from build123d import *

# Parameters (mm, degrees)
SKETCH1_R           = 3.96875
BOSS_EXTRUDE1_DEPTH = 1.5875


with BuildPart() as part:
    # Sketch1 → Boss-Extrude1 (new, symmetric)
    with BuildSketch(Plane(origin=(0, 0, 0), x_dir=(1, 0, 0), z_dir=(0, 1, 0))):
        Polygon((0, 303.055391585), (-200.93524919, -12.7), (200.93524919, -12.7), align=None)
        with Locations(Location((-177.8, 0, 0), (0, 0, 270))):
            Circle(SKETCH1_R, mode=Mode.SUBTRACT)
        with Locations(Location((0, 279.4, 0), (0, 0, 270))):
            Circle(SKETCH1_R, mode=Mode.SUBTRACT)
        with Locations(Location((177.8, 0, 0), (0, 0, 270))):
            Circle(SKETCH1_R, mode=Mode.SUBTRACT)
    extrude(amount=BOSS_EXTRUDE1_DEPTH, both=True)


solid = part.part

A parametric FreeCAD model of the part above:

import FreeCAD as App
import Part
import Sketcher
Q = App.Units.Quantity

doc = App.newDocument("Part")
body = doc.addObject("PartDesign::Body", "Body")

# Sketch on XZ plane
sketch1 = body.newObject("Sketcher::SketchObject", "Sketch")
sketch1.AttachmentSupport = (doc.getObject("XZ_Plane"), [""])
sketch1.MapMode = "FlatFace"
sketch1.addGeometry(Part.LineSegment(App.Vector(0, -303.1, 0), App.Vector(-200.9, 12.7, 0)), False)
sketch1.addGeometry(Part.LineSegment(App.Vector(-200.9, 12.7, 0), App.Vector(200.9, 12.7, 0)), False)
sketch1.addGeometry(Part.LineSegment(App.Vector(200.9, 12.7, 0), App.Vector(0, -303.1, 0)), False)
sketch1.addGeometry(Part.Circle(App.Vector(-177.8, 0, 0), App.Vector(0, 0, 1), 4), False)
sketch1.addGeometry(Part.Circle(App.Vector(177.8, 0, 0), App.Vector(0, 0, 1), 4), False)
sketch1.addGeometry(Part.Circle(App.Vector(0, -279.4, 0), App.Vector(0, 0, 1), 4), False)
sketch1.addConstraint(Sketcher.Constraint("Coincident", 0, 2, 1, 1))
sketch1.addConstraint(Sketcher.Constraint("Coincident", 1, 2, 2, 1))
sketch1.addConstraint(Sketcher.Constraint("Coincident", 2, 2, 0, 1))
sketch1.addConstraint(Sketcher.Constraint("Horizontal", 1))
sketch1.addConstraint(Sketcher.Constraint("Equal", 3, 4))
sketch1.addConstraint(Sketcher.Constraint("Equal", 4, 5))
sketch1.addConstraint(Sketcher.Constraint("Symmetric", 3, 3, 4, 3, -1, 1))
sketch1.addConstraint(Sketcher.Constraint("PointOnObject", 3, 3, -1))
sketch1.addConstraint(Sketcher.Constraint("PointOnObject", 5, 3, -2))
sketch1.addConstraint(Sketcher.Constraint("PointOnObject", 2, 2, -2))
sketch1.addConstraint(Sketcher.Constraint("Equal", 0, 2))
sketch1.addConstraint(Sketcher.Constraint("Diameter", 3, Q("0.3125 in")))
sketch1.addConstraint(Sketcher.Constraint("DistanceX", 3, 3, -1, 1, Q("7 in")))
sketch1.addConstraint(Sketcher.Constraint("DistanceY", 5, 3, -1, 1, Q("11 in")))
sketch1.addConstraint(Sketcher.Constraint("DistanceY", -1, 1, 0, 2, Q("0.5 in")))
sketch1.addConstraint(Sketcher.Constraint("DistanceX", 1, 1, 1, 2, Q("401.870498 mm")))
sketch1.addConstraint(Sketcher.Constraint("DistanceY", 2, 2, -1, 1, Q("303.055392 mm")))
pad1 = body.newObject("PartDesign::Pad", "Pad")
pad1.Profile = sketch1
pad1.Length = Q("0.125 in")
pad1.Midplane = True

doc.recompute()
